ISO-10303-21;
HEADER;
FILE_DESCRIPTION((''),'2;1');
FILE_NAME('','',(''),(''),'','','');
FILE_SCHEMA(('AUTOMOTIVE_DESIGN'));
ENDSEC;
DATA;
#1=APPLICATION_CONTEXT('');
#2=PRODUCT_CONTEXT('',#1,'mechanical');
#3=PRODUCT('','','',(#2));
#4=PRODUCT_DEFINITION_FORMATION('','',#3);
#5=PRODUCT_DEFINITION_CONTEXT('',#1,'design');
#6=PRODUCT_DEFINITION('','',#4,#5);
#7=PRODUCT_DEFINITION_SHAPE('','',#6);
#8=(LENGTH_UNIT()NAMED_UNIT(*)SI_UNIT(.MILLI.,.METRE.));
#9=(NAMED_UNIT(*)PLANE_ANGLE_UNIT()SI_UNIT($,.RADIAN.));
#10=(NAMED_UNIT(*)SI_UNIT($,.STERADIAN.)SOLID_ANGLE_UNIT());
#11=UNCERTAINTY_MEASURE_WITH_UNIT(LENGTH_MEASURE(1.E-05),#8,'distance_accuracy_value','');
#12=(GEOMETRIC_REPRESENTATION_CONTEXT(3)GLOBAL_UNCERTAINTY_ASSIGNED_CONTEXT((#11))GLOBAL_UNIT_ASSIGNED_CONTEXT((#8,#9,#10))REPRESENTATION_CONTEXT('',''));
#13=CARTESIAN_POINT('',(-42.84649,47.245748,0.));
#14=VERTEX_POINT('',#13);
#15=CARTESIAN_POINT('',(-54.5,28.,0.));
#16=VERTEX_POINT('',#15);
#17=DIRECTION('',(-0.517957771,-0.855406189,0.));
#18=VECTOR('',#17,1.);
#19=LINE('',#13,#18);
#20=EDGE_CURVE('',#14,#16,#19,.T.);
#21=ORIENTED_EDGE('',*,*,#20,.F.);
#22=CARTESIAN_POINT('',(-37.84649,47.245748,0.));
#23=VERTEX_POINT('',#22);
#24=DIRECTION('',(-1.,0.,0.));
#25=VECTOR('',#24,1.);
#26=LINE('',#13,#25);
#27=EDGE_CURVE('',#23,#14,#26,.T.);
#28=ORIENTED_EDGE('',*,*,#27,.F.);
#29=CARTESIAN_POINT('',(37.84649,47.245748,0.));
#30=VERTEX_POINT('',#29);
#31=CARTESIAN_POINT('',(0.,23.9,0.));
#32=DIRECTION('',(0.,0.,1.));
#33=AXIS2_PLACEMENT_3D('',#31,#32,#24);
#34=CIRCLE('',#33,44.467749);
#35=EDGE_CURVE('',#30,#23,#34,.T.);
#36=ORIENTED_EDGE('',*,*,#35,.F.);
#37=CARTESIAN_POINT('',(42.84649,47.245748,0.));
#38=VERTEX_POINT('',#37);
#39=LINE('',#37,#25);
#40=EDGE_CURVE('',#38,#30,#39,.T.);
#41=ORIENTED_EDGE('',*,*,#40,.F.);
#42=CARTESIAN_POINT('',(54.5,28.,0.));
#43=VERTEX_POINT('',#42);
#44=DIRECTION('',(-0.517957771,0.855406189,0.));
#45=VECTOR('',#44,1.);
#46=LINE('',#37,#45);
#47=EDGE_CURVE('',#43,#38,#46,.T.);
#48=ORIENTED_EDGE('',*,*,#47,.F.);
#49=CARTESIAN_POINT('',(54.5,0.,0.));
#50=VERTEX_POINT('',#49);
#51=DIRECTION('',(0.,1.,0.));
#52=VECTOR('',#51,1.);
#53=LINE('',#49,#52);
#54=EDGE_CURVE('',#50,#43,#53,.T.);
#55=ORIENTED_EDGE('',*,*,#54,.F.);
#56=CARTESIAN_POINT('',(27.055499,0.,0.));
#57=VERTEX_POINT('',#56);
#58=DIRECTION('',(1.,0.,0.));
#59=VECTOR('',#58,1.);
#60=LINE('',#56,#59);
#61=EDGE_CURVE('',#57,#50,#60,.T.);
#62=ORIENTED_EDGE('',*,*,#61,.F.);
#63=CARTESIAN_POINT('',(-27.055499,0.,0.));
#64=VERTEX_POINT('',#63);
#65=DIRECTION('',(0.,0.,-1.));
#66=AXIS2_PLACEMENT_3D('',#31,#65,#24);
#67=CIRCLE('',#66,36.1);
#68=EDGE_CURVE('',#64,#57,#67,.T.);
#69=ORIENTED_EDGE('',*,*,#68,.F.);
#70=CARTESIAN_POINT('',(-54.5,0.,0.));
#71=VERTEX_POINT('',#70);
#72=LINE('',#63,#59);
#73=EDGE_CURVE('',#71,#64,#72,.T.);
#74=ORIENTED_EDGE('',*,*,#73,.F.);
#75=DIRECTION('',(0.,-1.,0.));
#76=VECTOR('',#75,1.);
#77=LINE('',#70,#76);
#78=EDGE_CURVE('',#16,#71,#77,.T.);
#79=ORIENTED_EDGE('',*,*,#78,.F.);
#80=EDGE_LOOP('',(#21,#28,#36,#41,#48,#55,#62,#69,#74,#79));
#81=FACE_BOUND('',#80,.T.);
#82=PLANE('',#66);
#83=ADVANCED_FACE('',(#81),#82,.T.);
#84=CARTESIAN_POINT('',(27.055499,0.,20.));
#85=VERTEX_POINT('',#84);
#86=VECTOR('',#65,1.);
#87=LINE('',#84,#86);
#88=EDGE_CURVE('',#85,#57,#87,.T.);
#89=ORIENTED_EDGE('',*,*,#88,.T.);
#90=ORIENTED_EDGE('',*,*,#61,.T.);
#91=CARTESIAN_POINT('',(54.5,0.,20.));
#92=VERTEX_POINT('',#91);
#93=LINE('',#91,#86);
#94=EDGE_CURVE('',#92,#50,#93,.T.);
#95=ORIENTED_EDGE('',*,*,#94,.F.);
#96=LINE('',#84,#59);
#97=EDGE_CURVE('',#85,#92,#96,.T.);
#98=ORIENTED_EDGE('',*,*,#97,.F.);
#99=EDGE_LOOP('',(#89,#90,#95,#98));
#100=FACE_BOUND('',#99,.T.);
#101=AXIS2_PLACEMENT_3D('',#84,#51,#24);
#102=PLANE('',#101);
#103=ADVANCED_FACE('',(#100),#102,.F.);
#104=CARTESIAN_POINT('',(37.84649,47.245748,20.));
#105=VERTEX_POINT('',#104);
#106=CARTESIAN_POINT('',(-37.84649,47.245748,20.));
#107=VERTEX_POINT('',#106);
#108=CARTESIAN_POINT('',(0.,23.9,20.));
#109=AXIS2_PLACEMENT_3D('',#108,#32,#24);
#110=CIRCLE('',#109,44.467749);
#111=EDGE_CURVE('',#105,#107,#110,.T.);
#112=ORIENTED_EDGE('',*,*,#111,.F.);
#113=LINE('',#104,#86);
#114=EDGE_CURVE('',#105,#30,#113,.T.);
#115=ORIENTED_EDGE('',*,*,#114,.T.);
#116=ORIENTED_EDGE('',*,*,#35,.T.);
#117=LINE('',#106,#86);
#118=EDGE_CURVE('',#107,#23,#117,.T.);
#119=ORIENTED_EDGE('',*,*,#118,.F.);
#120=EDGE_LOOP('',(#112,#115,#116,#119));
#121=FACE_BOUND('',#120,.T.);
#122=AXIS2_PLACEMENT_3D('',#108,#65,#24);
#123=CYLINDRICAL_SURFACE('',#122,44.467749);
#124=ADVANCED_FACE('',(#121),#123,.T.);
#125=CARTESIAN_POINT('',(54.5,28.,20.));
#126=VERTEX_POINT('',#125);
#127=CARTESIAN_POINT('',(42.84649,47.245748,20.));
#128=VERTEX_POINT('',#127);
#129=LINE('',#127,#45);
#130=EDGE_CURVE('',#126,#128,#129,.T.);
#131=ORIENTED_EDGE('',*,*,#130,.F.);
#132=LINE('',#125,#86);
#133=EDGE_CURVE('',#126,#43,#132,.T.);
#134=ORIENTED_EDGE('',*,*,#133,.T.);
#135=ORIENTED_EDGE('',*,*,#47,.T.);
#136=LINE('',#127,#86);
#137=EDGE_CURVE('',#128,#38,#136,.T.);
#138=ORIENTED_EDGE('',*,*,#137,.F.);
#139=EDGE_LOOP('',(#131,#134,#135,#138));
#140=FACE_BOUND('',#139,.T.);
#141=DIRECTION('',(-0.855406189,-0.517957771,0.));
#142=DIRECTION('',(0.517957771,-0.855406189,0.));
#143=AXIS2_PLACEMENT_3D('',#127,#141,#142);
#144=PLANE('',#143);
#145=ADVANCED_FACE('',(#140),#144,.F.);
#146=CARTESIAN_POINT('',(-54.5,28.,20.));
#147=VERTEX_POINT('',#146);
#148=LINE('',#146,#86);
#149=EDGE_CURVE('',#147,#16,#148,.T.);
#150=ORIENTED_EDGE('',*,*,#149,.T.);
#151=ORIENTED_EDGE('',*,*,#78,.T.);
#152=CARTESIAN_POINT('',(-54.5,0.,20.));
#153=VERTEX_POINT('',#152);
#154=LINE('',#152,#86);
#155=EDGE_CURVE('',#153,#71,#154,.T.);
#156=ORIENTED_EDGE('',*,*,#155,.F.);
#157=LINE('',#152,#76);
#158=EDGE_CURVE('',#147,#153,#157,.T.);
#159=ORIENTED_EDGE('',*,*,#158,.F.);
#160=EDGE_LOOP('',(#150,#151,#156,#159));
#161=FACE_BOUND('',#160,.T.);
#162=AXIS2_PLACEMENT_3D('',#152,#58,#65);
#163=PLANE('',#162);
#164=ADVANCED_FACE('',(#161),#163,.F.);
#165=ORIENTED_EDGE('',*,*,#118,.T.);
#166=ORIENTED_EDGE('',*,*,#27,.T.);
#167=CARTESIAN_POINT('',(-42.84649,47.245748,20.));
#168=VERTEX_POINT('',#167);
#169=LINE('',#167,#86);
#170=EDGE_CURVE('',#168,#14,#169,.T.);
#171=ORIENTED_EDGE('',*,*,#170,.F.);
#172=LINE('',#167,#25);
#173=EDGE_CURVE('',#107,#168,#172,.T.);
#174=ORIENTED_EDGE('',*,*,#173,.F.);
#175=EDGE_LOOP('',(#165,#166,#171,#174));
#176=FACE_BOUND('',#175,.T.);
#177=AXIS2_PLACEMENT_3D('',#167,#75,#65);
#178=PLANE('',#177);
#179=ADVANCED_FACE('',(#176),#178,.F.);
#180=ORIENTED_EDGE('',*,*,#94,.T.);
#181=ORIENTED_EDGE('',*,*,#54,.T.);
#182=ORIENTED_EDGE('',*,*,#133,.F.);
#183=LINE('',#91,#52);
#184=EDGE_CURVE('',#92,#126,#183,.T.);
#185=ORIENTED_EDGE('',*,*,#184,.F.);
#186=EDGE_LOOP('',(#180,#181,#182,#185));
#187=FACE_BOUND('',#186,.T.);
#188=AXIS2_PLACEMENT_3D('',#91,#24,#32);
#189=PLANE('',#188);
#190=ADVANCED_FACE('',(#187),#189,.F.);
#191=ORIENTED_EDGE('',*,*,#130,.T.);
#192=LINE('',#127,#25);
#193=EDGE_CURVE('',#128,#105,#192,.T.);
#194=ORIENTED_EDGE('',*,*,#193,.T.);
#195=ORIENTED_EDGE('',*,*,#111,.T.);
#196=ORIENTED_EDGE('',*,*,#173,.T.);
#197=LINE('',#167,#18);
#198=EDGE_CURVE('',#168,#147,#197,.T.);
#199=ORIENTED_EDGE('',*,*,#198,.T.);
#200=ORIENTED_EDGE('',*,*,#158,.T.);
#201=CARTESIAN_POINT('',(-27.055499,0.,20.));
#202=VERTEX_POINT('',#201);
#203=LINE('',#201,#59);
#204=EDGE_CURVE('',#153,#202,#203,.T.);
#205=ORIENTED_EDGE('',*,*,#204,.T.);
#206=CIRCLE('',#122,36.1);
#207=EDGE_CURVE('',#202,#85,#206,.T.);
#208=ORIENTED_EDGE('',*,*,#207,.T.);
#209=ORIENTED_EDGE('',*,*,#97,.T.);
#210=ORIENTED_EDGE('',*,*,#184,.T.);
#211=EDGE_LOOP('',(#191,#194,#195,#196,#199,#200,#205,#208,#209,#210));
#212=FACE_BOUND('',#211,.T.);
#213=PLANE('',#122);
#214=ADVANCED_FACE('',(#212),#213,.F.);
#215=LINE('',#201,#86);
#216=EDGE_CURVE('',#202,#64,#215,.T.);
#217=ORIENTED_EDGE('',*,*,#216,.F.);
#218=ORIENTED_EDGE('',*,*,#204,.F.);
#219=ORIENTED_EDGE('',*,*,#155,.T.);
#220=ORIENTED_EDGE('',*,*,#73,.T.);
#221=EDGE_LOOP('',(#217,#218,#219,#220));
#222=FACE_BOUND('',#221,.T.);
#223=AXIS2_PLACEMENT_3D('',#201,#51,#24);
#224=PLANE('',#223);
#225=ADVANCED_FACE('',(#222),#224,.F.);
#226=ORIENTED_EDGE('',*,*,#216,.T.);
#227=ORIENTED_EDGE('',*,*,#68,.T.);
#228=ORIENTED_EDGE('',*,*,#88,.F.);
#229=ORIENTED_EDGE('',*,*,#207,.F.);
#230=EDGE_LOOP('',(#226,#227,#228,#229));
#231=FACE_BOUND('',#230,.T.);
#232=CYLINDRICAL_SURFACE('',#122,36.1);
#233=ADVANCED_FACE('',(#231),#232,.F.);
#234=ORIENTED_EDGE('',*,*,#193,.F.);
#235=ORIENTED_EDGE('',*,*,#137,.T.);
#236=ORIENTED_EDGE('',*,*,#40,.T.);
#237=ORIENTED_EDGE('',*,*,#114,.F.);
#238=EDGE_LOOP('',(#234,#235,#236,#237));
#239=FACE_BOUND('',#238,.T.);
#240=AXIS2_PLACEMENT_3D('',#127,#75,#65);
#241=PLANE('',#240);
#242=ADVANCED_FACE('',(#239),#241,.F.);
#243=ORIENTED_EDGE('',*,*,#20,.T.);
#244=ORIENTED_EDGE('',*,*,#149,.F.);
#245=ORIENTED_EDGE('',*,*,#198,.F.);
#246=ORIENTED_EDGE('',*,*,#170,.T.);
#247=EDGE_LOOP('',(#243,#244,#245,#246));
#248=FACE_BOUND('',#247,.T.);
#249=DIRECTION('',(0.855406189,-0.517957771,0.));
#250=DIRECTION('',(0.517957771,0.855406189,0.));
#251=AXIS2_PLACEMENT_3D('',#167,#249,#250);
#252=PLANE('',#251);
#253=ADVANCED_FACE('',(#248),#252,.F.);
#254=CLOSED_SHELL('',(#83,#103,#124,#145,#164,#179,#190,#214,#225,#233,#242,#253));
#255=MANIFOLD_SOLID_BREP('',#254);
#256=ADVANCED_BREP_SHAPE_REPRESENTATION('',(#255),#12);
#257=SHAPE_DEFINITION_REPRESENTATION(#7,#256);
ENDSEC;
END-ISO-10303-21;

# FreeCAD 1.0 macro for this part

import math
import FreeCAD as App
import Part
import Sketcher
Q = App.Units.Quantity

doc = App.newDocument("Part")
params = doc.addObject("Spreadsheet::Sheet", "Params")
for row, (alias, value) in enumerate([
    ("sketch1_radius", "36.1 mm"),
    ("sketch1_width", "5 mm"),
    ("sketch1_height", "28 mm"),
    ("pad1_length", "20 mm"),
], start=1):
    params.set(f"A{row}", alias)
    params.set(f"B{row}", "=" + value)
    params.setAlias(f"B{row}", alias)

body = doc.addObject("PartDesign::Body", "Body")

sketch1 = doc.addObject("Sketcher::SketchObject", "Sketch")
body.addObject(sketch1)
sketch1.AttachmentSupport = (doc.XY_Plane, [""])
sketch1.MapMode = "FlatFace"
sketch1.addGeometry([
    Part.LineSegment(App.Vector(-54.5, 0, 0), App.Vector(-27.055499, 0, 0)),
    Part.ArcOfCircle(Part.Circle(App.Vector(0, 23.9, 0), App.Vector(0, 0, 1), 36.1), math.radians(-41.456395), math.radians(221.456395)),
    Part.LineSegment(App.Vector(27.055499, 0, 0), App.Vector(54.5, 0, 0)),
    Part.LineSegment(App.Vector(54.5, 0, 0), App.Vector(54.5, 28, 0)),
    Part.LineSegment(App.Vector(54.5, 28, 0), App.Vector(42.84649, 47.245748, 0)),
    Part.LineSegment(App.Vector(42.84649, 47.245748, 0), App.Vector(37.84649, 47.245748, 0)),
    Part.ArcOfCircle(Part.Circle(App.Vector(0, 23.9, 0), App.Vector(0, 0, 1), 44.467749), math.radians(31.668515), math.radians(148.331485)),
    Part.LineSegment(App.Vector(-37.84649, 47.245748, 0), App.Vector(-42.84649, 47.245748, 0)),
    Part.LineSegment(App.Vector(-42.84649, 47.245748, 0), App.Vector(-54.5, 28, 0)),
    Part.LineSegment(App.Vector(-54.5, 28, 0), App.Vector(-54.5, 0, 0)),
], False)
sketch1.addConstraint([
    Sketcher.Constraint("Coincident", 0, 2, 1, 2),
    Sketcher.Constraint("Coincident", 1, 1, 2, 1),
    Sketcher.Constraint("Coincident", 2, 2, 3, 1),
    Sketcher.Constraint("Coincident", 3, 2, 4, 1),
    Sketcher.Constraint("Coincident", 4, 2, 5, 1),
    Sketcher.Constraint("Coincident", 5, 2, 6, 1),
    Sketcher.Constraint("Coincident", 6, 2, 7, 1),
    Sketcher.Constraint("Coincident", 7, 2, 8, 1),
    Sketcher.Constraint("Coincident", 8, 2, 9, 1),
    Sketcher.Constraint("Coincident", 9, 2, 0, 1),
    Sketcher.Constraint("Horizontal", 0),
    Sketcher.Constraint("Horizontal", 2),
    Sketcher.Constraint("Vertical", 3),
    Sketcher.Constraint("Horizontal", 5),
    Sketcher.Constraint("Horizontal", 7),
    Sketcher.Constraint("Vertical", 9),
    Sketcher.Constraint("Coincident", 6, 3, 1, 3),
    Sketcher.Constraint("Symmetric", 0, 2, 1, 1, -1, 1),
    Sketcher.Constraint("Symmetric", 5, 2, 6, 2, -2),
    Sketcher.Constraint("Symmetric", 3, 2, 8, 2, -2),
    Sketcher.Constraint("Equal", 5, 7),
    Sketcher.Constraint("Radius", 1, Q("36.1 mm")),
    Sketcher.Constraint("DistanceX", 5, 2, 5, 1, Q("5 mm")),
    Sketcher.Constraint("DistanceY", 3, 1, 3, 2, Q("28 mm")),
    Sketcher.Constraint("DistanceY", -1, 1, 1, 3, Q("23.9 mm")),
    Sketcher.Constraint("DistanceX", -1, 1, 2, 2, Q("54.5 mm")),
    Sketcher.Constraint("Radius", 6, Q("44.467749 mm")),
    Sketcher.Constraint("Distance", 4, Q("22.498958 mm")),
])
sketch1.setExpression("Constraints[21]", "Params.sketch1_radius")
sketch1.setExpression("Constraints[22]", "Params.sketch1_width")
sketch1.setExpression("Constraints[23]", "Params.sketch1_height")
pad1 = doc.addObject("PartDesign::Pad", "Pad")
body.addObject(pad1)
pad1.Profile = sketch1
pad1.setExpression("Length", "Params.pad1_length")

doc.recompute()
